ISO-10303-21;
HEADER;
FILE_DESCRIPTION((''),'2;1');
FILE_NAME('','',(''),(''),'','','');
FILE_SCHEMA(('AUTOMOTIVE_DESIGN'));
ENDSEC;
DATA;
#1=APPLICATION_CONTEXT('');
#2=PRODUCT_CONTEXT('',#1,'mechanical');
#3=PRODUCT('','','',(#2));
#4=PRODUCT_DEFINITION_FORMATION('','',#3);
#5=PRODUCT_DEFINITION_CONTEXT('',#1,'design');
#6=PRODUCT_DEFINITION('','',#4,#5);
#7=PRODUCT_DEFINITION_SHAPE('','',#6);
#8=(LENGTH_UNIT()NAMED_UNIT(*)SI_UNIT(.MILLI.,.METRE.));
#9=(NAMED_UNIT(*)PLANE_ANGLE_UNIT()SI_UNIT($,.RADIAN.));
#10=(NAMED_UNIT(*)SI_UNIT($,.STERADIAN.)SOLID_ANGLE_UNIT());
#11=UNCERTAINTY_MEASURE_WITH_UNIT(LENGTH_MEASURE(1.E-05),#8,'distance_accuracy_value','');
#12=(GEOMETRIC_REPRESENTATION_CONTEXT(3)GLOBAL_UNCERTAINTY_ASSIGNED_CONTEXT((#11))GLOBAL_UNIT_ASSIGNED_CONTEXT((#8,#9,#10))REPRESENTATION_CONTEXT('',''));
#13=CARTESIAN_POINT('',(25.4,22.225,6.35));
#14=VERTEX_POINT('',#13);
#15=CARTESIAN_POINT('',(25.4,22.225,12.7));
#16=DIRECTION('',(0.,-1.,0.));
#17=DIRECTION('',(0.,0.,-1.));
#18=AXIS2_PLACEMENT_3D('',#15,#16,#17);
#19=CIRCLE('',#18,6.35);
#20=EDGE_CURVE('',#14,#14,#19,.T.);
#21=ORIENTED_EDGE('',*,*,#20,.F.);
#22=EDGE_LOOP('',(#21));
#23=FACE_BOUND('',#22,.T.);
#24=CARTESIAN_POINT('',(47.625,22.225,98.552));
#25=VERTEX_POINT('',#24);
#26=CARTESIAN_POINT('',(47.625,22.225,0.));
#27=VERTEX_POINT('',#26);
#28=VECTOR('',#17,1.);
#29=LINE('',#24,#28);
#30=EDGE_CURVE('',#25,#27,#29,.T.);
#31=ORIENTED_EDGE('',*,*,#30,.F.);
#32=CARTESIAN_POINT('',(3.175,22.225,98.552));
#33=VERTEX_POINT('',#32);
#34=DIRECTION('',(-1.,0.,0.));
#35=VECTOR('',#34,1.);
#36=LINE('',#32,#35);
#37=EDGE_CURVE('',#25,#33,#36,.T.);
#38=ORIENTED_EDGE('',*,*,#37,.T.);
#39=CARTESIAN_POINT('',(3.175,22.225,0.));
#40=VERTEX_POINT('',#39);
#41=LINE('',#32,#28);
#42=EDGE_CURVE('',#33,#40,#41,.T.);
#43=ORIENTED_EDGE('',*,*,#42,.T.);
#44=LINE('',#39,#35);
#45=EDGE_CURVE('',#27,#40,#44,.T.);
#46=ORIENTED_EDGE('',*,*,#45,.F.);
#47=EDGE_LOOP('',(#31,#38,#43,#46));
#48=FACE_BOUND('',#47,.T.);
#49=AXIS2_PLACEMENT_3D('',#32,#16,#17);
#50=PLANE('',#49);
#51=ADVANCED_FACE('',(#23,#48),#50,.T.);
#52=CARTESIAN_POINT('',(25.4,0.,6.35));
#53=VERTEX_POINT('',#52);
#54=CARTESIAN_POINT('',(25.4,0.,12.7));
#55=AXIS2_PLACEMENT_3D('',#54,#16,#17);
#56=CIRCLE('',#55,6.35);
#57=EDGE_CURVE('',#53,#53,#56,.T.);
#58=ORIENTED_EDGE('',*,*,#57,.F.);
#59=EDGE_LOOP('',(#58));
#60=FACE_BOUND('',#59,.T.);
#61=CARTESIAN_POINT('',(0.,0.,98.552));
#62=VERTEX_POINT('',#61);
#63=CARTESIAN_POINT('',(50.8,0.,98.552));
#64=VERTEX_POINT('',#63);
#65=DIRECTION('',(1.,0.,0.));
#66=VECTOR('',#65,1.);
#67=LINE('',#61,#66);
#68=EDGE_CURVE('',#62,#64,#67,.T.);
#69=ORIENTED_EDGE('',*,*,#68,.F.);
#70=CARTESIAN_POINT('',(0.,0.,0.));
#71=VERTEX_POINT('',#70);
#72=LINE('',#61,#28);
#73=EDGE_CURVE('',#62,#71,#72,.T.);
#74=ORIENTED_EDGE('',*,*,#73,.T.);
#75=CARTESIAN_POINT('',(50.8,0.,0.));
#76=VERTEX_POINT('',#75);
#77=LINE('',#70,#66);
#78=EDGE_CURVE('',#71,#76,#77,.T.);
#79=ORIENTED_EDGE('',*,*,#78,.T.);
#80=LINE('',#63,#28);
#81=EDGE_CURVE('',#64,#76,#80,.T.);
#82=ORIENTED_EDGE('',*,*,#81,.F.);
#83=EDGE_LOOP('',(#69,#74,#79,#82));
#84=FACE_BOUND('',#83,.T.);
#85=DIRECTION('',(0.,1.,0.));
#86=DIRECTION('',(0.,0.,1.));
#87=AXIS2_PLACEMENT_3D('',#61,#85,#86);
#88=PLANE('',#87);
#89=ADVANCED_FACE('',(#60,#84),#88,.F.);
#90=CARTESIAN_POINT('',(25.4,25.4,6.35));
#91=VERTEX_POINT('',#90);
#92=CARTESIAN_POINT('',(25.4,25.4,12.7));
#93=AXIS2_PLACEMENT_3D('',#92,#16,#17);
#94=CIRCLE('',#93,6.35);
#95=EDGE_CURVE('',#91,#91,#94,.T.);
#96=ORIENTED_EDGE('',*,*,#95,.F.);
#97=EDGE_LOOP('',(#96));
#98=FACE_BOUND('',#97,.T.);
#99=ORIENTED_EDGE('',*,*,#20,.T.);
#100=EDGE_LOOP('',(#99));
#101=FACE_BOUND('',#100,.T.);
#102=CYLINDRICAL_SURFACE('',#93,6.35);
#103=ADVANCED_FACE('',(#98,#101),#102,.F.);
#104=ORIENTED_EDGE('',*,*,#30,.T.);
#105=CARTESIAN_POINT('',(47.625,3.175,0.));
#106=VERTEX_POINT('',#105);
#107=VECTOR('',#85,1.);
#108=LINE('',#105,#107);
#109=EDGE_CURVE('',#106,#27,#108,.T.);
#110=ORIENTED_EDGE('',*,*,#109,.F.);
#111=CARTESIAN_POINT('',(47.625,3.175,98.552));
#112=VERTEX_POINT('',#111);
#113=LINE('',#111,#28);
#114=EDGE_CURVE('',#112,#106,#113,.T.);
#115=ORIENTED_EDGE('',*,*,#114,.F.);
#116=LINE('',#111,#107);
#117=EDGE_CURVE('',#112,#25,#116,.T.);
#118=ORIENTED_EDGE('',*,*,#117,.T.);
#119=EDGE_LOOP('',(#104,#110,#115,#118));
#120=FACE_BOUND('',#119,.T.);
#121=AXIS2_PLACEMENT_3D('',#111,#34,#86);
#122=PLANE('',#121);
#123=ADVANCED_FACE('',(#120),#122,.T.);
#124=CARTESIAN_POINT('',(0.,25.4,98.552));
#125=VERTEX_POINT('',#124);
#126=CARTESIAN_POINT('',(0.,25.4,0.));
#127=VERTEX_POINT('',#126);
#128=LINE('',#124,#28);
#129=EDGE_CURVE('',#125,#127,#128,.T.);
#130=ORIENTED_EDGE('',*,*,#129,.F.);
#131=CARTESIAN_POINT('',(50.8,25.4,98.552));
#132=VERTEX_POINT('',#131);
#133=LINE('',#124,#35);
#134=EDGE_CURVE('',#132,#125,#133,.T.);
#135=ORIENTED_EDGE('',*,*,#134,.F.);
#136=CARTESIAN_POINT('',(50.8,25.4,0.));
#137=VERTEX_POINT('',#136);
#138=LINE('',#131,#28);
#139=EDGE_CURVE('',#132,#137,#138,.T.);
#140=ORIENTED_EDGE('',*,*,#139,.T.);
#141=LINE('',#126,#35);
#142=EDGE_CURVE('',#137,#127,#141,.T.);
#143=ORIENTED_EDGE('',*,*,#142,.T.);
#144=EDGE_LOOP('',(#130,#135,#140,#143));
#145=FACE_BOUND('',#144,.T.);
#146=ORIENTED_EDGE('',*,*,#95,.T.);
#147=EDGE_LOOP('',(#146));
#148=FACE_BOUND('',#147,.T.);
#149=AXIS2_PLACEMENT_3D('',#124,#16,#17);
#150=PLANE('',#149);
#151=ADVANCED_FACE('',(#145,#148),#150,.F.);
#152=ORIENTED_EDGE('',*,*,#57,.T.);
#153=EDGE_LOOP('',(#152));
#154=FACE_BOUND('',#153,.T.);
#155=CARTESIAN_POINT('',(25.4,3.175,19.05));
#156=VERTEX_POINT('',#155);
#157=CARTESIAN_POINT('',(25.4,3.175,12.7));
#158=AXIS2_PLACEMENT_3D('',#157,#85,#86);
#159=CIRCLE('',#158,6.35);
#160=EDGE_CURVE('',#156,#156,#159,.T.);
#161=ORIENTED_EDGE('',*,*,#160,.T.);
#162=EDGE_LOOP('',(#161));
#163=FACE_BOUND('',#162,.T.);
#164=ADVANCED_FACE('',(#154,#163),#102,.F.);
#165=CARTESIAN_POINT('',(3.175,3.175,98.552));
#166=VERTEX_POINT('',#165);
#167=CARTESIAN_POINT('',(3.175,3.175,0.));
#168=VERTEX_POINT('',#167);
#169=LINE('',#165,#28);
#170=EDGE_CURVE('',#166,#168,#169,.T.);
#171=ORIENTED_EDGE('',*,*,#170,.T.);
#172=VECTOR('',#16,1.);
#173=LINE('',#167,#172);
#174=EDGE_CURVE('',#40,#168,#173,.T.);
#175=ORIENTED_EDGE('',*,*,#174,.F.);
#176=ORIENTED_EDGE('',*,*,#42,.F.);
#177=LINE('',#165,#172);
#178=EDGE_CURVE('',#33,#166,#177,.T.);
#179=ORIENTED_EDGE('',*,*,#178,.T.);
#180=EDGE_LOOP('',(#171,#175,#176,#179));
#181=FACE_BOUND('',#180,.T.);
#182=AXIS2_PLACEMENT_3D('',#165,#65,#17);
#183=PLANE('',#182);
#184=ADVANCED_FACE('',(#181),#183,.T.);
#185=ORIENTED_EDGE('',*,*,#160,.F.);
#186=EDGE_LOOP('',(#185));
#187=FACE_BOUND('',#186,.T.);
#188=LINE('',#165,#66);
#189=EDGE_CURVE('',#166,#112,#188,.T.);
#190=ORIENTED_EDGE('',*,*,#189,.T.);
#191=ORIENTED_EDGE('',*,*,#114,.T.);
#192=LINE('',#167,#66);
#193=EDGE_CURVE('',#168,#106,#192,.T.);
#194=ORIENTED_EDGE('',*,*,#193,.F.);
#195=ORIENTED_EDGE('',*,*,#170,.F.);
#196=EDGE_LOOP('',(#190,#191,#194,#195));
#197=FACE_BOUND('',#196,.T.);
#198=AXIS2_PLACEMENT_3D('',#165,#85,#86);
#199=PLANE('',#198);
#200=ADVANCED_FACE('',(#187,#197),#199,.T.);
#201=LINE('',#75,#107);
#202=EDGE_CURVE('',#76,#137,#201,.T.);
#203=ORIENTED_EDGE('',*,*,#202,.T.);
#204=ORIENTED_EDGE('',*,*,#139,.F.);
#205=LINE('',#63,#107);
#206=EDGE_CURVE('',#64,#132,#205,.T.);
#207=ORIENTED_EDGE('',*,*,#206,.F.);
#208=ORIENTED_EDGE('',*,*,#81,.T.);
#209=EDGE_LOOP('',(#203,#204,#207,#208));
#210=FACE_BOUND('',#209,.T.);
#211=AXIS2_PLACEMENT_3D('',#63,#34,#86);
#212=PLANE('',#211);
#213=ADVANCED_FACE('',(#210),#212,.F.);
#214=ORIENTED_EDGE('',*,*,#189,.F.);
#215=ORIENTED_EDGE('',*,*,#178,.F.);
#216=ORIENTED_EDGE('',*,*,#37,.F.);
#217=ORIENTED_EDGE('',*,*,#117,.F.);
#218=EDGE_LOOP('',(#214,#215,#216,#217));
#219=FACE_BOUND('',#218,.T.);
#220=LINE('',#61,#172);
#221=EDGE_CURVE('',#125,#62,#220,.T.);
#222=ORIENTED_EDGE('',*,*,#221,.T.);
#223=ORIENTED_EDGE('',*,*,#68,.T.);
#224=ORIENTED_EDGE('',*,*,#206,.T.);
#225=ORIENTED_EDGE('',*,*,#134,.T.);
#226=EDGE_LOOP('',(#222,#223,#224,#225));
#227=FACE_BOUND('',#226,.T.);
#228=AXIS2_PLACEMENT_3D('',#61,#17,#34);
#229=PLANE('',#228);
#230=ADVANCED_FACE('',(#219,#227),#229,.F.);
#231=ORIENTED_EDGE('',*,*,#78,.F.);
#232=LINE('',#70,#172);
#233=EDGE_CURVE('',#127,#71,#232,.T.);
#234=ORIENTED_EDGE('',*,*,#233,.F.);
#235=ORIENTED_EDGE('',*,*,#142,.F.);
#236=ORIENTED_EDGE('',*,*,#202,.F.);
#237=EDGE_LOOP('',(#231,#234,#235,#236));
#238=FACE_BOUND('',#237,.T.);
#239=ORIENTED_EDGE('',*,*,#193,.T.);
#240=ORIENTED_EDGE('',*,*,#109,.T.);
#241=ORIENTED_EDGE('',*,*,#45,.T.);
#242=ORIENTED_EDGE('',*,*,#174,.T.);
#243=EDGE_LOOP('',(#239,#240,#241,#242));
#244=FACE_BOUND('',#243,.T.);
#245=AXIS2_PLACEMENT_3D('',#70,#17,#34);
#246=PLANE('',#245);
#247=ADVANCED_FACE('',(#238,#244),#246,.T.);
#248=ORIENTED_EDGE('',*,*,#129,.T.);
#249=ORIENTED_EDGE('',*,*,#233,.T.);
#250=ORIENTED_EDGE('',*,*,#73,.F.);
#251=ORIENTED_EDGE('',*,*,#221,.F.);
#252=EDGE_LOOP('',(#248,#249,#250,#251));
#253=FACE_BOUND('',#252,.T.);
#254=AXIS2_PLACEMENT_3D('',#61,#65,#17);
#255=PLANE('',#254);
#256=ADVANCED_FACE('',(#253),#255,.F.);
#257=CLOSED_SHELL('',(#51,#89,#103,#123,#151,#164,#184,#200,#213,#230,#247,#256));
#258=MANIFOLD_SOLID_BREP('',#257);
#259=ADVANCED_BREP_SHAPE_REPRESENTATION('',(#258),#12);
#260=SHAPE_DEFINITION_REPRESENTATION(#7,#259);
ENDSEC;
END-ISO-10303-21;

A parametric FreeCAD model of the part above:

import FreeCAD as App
import Part
import Sketcher

V = App.Vector
Q = App.Units.Quantity


def add_polygon(sketch, points):
    """Adds a closed chain of lines whose ends are joined by coincident constraints."""
    first, n = sketch.GeometryCount, len(points)
    for a, b in zip(points, points[1:] + points[:1]):
        sketch.addGeometry(Part.LineSegment(App.Vector(*a, 0), App.Vector(*b, 0)), False)
    for i in range(n):
        sketch.addConstraint(Sketcher.Constraint("Coincident", first + i, 2, first + (i + 1) % n, 1))

doc = App.newDocument("Part")
params = doc.addObject("Spreadsheet::Sheet", "Params")
for row, (alias, value) in enumerate([
    ("sketch1_width", "2 in"),
    ("sketch1_height", "1 in"),
    ("sketch1_width2", "1.75 in"),
    ("sketch1_height2", "0.75 in"),
    ("pad1_length", "3.88 in"),
    ("sketch2_diameter", "0.5 in"),
], start=1):
    params.set(f"A{row}", alias)
    params.set(f"B{row}", "=" + value)
    params.setAlias(f"B{row}", alias)

body = doc.addObject("PartDesign::Body", "Body")

# Sketch on XY plane
sketch1 = body.newObject("Sketcher::SketchObject", "Sketch")
sketch1.AttachmentSupport = (doc.getObject("XY_Plane"), [""])
sketch1.MapMode = "FlatFace"
add_polygon(sketch1, [(0, 25), (0, 0), (51, 0), (51, 25)])  # lines 0-3
add_polygon(sketch1, [(48, 3), (3, 3), (3, 22), (48, 22)])  # lines 4-7
sketch1.addConstraint(Sketcher.Constraint("Vertical", 0))
sketch1.addConstraint(Sketcher.Constraint("Horizontal", 1))
sketch1.addConstraint(Sketcher.Constraint("Vertical", 2))
sketch1.addConstraint(Sketcher.Constraint("Horizontal", 3))
sketch1.addConstraint(Sketcher.Constraint("Horizontal", 4))
sketch1.addConstraint(Sketcher.Constraint("Vertical", 5))
sketch1.addConstraint(Sketcher.Constraint("Horizontal", 6))
sketch1.addConstraint(Sketcher.Constraint("Vertical", 7))
sketch1.addConstraint(Sketcher.Constraint("Coincident", 0, 2, -1, 1))
sketch1.addConstraint(Sketcher.Constraint("DistanceX", 1, 1, 1, 2, Q("2 in")))
sketch1.addConstraint(Sketcher.Constraint("DistanceY", 0, 2, 0, 1, Q("1 in")))
sketch1.addConstraint(Sketcher.Constraint("DistanceX", 4, 2, 4, 1, Q("1.75 in")))
sketch1.addConstraint(Sketcher.Constraint("DistanceY", 5, 1, 5, 2, Q("0.75 in")))
sketch1.addConstraint(Sketcher.Constraint("DistanceX", -1, 1, 4, 2, Q("0.125 in")))
sketch1.addConstraint(Sketcher.Constraint("DistanceY", -1, 1, 4, 2, Q("0.125 in")))
sketch1.setExpression("Constraints[17]", "Params.sketch1_width")
sketch1.setExpression("Constraints[18]", "Params.sketch1_height")
sketch1.setExpression("Constraints[19]", "Params.sketch1_width2")
sketch1.setExpression("Constraints[20]", "Params.sketch1_height2")
pad1 = body.newObject("PartDesign::Pad", "Pad")
pad1.Profile = sketch1
pad1.setExpression("Length", "Params.pad1_length")

# Sketch on XZ plane
sketch2 = body.newObject("Sketcher::SketchObject", "Sketch001")
sketch2.AttachmentSupport = (doc.getObject("XZ_Plane"), [""])
sketch2.MapMode = "FlatFace"
sketch2.addGeometry(Part.Circle(V(25, 13, 0), V(0, 0, 1), 6), False)
sketch2.addConstraint(Sketcher.Constraint("Diameter", 0, Q("0.5 in")))
sketch2.addConstraint(Sketcher.Constraint("DistanceX", -1, 1, 0, 3, Q("1 in")))
sketch2.addConstraint(Sketcher.Constraint("DistanceY", -1, 1, 0, 3, Q("0.5 in")))
sketch2.setExpression("Constraints[0]", "Params.sketch2_diameter")
pocket1 = body.newObject("PartDesign::Pocket", "Pocket")
pocket1.Profile = sketch2
pocket1.Type = "ThroughAll"

doc.recompute()
